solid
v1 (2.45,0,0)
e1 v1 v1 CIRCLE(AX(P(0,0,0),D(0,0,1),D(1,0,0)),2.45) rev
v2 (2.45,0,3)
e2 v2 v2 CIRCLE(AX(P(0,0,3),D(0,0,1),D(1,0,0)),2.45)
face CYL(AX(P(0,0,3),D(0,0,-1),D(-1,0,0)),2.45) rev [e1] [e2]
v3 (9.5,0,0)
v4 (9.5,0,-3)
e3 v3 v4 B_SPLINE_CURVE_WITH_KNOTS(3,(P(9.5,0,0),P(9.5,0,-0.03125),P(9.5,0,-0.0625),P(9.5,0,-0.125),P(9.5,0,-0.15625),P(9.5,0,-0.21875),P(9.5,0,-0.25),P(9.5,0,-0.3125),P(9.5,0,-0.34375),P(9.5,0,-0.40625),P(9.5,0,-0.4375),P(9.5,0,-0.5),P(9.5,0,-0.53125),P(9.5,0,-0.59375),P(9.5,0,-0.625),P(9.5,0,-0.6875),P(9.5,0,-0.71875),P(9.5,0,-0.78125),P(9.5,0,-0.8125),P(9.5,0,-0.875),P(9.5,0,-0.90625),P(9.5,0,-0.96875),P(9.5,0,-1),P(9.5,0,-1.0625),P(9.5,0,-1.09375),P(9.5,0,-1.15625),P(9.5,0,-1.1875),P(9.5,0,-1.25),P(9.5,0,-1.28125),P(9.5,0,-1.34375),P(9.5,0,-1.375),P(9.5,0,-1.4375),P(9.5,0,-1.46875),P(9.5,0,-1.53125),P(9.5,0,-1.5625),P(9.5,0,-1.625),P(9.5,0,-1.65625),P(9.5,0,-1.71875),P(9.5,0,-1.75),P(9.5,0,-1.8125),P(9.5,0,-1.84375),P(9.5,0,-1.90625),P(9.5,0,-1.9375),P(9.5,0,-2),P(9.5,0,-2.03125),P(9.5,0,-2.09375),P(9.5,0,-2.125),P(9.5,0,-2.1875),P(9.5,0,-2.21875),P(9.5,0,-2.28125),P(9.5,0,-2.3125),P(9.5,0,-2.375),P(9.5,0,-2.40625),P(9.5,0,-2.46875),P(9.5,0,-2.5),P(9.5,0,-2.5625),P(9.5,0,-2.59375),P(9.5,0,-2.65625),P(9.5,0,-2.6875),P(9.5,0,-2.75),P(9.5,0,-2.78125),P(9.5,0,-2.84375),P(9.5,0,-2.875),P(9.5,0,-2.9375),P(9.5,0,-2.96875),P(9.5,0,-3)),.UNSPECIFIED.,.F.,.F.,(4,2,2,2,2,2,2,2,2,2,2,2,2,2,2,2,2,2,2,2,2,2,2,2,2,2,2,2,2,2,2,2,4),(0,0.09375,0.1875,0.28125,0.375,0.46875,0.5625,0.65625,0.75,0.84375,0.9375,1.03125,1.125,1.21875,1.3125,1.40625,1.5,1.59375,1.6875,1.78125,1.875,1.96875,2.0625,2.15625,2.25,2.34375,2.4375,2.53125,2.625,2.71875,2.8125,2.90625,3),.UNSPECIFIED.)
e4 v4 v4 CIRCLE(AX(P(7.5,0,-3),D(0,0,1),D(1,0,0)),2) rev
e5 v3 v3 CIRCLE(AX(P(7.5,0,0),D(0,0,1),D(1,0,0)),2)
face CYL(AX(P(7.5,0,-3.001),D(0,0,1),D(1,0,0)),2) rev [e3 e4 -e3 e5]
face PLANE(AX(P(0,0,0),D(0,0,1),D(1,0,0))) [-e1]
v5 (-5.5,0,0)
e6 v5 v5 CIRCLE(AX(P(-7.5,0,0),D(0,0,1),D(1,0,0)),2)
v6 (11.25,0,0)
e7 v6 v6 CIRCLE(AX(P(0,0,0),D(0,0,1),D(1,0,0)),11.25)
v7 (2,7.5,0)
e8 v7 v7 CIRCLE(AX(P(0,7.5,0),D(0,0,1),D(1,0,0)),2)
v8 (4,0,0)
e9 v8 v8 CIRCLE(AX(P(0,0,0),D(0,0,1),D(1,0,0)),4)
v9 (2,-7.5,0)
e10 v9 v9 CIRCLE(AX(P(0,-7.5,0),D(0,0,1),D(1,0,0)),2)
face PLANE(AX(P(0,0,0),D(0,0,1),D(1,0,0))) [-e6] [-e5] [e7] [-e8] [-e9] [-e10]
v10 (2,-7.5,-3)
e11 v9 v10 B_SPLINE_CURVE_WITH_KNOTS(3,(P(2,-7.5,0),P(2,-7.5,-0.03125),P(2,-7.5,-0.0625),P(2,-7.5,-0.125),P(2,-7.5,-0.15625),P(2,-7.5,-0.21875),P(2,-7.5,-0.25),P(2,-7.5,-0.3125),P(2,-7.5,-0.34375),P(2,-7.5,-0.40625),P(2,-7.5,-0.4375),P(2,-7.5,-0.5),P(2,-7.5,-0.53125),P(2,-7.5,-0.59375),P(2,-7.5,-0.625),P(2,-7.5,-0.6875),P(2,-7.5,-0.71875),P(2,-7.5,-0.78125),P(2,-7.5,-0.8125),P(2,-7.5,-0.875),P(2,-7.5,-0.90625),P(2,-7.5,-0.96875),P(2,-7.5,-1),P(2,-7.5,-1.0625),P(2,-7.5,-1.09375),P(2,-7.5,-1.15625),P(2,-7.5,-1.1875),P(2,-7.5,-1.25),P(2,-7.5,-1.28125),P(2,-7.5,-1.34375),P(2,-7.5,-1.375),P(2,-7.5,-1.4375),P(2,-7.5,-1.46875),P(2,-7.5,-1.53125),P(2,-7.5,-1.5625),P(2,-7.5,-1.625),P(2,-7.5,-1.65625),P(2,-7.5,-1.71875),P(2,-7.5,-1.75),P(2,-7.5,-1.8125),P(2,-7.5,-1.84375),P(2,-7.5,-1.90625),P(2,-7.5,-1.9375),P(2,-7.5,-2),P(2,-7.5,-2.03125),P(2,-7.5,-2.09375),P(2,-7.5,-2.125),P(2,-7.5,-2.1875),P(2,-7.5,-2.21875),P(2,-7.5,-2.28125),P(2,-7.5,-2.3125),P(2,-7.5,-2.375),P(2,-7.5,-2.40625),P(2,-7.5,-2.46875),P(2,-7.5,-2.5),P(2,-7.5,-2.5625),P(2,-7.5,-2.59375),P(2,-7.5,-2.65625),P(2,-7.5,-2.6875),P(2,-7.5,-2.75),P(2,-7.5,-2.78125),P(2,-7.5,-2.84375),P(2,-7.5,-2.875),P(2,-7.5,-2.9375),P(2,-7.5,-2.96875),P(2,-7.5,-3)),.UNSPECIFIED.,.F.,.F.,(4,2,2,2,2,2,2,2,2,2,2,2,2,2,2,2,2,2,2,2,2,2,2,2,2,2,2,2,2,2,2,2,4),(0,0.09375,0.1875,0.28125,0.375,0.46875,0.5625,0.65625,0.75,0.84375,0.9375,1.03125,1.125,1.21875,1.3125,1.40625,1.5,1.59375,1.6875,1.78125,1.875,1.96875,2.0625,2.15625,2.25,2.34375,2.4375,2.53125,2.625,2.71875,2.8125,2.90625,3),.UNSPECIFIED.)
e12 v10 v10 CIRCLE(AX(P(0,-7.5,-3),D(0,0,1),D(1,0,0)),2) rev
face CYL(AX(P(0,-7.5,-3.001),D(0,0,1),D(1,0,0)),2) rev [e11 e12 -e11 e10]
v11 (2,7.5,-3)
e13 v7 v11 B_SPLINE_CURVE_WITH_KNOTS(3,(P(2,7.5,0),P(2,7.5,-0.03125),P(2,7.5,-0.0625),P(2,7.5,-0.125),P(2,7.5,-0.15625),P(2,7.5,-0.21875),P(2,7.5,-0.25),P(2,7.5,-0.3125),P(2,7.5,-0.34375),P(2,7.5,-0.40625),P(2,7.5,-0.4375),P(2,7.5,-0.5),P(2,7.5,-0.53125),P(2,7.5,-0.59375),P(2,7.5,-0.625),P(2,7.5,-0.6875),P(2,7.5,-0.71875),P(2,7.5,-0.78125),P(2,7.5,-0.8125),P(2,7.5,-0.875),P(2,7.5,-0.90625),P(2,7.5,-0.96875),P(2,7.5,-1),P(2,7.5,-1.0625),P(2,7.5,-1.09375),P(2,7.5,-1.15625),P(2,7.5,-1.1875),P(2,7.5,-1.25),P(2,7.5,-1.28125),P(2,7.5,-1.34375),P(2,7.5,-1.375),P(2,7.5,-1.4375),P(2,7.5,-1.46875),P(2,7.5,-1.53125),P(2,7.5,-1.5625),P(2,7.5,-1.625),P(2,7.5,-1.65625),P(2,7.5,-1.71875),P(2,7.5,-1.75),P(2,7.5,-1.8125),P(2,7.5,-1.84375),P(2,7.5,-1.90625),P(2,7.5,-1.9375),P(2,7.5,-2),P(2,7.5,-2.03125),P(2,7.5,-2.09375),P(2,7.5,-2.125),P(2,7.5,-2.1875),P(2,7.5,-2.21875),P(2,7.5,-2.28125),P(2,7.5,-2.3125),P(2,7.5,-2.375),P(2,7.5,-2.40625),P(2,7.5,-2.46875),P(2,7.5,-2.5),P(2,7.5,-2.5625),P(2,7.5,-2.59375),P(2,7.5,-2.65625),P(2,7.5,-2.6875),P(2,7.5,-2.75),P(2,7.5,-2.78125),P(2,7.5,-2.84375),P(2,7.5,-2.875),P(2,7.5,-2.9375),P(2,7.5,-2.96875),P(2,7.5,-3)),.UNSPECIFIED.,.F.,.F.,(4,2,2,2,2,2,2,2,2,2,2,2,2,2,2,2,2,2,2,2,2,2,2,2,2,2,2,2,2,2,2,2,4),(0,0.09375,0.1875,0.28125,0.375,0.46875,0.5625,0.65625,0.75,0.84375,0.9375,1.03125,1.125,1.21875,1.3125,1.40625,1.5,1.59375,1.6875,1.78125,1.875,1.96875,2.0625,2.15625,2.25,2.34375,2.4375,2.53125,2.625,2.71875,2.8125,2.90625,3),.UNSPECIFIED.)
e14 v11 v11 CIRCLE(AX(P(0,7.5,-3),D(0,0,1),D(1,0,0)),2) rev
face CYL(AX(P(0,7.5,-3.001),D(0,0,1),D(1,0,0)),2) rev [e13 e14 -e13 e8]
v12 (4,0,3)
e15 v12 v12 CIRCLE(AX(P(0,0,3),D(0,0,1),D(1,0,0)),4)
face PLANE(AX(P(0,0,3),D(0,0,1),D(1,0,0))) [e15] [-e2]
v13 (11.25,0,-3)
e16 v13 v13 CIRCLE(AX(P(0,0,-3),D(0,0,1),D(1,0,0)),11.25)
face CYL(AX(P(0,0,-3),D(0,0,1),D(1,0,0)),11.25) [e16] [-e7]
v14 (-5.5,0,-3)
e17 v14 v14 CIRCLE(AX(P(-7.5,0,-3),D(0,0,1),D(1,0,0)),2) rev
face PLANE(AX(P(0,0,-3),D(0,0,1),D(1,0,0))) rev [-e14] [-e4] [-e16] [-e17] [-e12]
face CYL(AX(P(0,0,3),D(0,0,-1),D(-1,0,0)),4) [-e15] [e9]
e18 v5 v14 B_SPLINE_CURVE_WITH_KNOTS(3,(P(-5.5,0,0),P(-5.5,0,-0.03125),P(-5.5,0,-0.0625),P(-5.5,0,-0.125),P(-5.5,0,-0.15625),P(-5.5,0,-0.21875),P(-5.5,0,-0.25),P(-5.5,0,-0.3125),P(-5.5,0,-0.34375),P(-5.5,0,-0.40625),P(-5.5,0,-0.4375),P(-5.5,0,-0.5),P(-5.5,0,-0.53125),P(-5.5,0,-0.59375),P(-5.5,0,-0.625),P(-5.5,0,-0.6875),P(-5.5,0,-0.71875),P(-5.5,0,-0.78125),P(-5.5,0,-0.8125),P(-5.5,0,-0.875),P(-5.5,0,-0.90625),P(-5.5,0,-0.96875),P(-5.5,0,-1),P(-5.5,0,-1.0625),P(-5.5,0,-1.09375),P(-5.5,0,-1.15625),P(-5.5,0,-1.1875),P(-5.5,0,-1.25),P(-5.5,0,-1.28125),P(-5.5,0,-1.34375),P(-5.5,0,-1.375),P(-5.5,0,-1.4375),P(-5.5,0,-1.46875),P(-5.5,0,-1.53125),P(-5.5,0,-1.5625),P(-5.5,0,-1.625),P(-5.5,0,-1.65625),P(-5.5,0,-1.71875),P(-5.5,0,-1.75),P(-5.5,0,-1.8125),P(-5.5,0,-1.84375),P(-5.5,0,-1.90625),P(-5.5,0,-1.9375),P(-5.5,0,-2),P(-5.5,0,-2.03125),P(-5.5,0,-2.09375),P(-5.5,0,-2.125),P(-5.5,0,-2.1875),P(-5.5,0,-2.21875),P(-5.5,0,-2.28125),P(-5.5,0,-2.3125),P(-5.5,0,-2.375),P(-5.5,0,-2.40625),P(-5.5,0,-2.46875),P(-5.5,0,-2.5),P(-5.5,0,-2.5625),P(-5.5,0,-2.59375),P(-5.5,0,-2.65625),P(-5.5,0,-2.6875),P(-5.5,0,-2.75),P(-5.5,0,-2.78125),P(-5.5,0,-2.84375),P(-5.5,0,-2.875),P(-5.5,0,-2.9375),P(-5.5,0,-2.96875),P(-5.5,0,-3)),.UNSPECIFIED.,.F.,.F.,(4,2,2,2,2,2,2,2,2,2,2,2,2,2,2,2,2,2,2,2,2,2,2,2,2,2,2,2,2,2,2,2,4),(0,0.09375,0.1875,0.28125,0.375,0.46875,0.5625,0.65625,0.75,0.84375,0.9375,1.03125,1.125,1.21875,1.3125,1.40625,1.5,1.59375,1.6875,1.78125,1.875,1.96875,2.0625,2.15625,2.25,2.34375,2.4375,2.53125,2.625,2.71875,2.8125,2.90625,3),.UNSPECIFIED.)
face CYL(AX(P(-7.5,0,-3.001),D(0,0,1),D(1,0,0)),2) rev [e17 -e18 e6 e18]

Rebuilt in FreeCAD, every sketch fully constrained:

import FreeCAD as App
import Part
import Sketcher

V = App.Vector

doc = App.newDocument("Part")
body = doc.addObject("PartDesign::Body", "Body")

# Sketch on XY plane
sketch1 = body.newObject("Sketcher::SketchObject", "Sketch")
sketch1.AttachmentSupport = (doc.getObject("XY_Plane"), [""])
sketch1.MapMode = "FlatFace"
sketch1.addGeometry(Part.Circle(V(0, 0, 0), V(0, 0, 1), 11), False)
sketch1.addConstraint(Sketcher.Constraint("Coincident", 0, 3, -1, 1))
sketch1.addConstraint(Sketcher.Constraint("Diameter", 0, 22.5))
pad1 = body.newObject("PartDesign::Pad", "Pad")
pad1.Profile = sketch1
pad1.Length = 3
pad1.Reversed = True

# Sketch on XY plane
sketch2 = body.newObject("Sketcher::SketchObject", "Sketch001")
sketch2.AttachmentSupport = (doc.getObject("XY_Plane"), [""])
sketch2.MapMode = "FlatFace"
sketch2.addGeometry(Part.Circle(V(0, 0, 0), V(0, 0, 1), 4), False)
sketch2.addGeometry(Part.Circle(V(0, 0, 0), V(0, 0, 1), 2.5), False)
sketch2.addConstraint(Sketcher.Constraint("Coincident", 0, 3, -1, 1))
sketch2.addConstraint(Sketcher.Constraint("Coincident", 1, 3, -1, 1))
sketch2.addConstraint(Sketcher.Constraint("Diameter", 0, 8.0))
sketch2.addConstraint(Sketcher.Constraint("Diameter", 1, 4.9))
pad2 = body.newObject("PartDesign::Pad", "Pad001")
pad2.Profile = sketch2
pad2.Length = 3

# Sketch on XY plane
sketch3 = body.newObject("Sketcher::SketchObject", "Sketch002")
sketch3.AttachmentSupport = (doc.getObject("XY_Plane"), [""])
sketch3.MapMode = "FlatFace"
sketch3.addGeometry(Part.Circle(V(0, 7.5, 0), V(0, 0, 1), 2), False)
sketch3.addConstraint(Sketcher.Constraint("PointOnObject", 0, 3, -2))
sketch3.addConstraint(Sketcher.Constraint("Diameter", 0, 4.0))
sketch3.addConstraint(Sketcher.Constraint("DistanceY", -1, 1, 0, 3, 7.5))
pocket1 = body.newObject("PartDesign::Pocket", "Pocket")
pocket1.Profile = sketch3
pocket1.Type = "UpToFirst"

# Sketch on XY plane
sketch4 = body.newObject("Sketcher::SketchObject", "Sketch003")
sketch4.AttachmentSupport = (doc.getObject("XY_Plane"), [""])
sketch4.MapMode = "FlatFace"
sketch4.addGeometry(Part.Circle(V(7.5, 0, 0), V(0, 0, 1), 2), False)
sketch4.addConstraint(Sketcher.Constraint("PointOnObject", 0, 3, -1))
sketch4.addConstraint(Sketcher.Constraint("Diameter", 0, 4.0))
sketch4.addConstraint(Sketcher.Constraint("DistanceX", -1, 1, 0, 3, 7.5))
pocket2 = body.newObject("PartDesign::Pocket", "Pocket001")
pocket2.Profile = sketch4
pocket2.Type = "UpToFirst"

# Sketch on XY plane
sketch5 = body.newObject("Sketcher::SketchObject", "Sketch004")
sketch5.AttachmentSupport = (doc.getObject("XY_Plane"), [""])
sketch5.MapMode = "FlatFace"
sketch5.addGeometry(Part.Circle(V(0, -7.5, 0), V(0, 0, 1), 2), False)
sketch5.addConstraint(Sketcher.Constraint("PointOnObject", 0, 3, -2))
sketch5.addConstraint(Sketcher.Constraint("Diameter", 0, 4.0))
sketch5.addConstraint(Sketcher.Constraint("DistanceY", 0, 3, -1, 1, 7.5))
pocket3 = body.newObject("PartDesign::Pocket", "Pocket002")
pocket3.Profile = sketch5
pocket3.Type = "UpToFirst"

# Sketch on XY plane
sketch6 = body.newObject("Sketcher::SketchObject", "Sketch005")
sketch6.AttachmentSupport = (doc.getObject("XY_Plane"), [""])
sketch6.MapMode = "FlatFace"
sketch6.addGeometry(Part.Circle(V(-7.5, 0, 0), V(0, 0, 1), 2), False)
sketch6.addConstraint(Sketcher.Constraint("PointOnObject", 0, 3, -1))
sketch6.addConstraint(Sketcher.Constraint("Diameter", 0, 4.0))
sketch6.addConstraint(Sketcher.Constraint("DistanceX", 0, 3, -1, 1, 7.5))
pocket4 = body.newObject("PartDesign::Pocket", "Pocket003")
pocket4.Profile = sketch6
pocket4.Type = "UpToFirst"

doc.recompute()
